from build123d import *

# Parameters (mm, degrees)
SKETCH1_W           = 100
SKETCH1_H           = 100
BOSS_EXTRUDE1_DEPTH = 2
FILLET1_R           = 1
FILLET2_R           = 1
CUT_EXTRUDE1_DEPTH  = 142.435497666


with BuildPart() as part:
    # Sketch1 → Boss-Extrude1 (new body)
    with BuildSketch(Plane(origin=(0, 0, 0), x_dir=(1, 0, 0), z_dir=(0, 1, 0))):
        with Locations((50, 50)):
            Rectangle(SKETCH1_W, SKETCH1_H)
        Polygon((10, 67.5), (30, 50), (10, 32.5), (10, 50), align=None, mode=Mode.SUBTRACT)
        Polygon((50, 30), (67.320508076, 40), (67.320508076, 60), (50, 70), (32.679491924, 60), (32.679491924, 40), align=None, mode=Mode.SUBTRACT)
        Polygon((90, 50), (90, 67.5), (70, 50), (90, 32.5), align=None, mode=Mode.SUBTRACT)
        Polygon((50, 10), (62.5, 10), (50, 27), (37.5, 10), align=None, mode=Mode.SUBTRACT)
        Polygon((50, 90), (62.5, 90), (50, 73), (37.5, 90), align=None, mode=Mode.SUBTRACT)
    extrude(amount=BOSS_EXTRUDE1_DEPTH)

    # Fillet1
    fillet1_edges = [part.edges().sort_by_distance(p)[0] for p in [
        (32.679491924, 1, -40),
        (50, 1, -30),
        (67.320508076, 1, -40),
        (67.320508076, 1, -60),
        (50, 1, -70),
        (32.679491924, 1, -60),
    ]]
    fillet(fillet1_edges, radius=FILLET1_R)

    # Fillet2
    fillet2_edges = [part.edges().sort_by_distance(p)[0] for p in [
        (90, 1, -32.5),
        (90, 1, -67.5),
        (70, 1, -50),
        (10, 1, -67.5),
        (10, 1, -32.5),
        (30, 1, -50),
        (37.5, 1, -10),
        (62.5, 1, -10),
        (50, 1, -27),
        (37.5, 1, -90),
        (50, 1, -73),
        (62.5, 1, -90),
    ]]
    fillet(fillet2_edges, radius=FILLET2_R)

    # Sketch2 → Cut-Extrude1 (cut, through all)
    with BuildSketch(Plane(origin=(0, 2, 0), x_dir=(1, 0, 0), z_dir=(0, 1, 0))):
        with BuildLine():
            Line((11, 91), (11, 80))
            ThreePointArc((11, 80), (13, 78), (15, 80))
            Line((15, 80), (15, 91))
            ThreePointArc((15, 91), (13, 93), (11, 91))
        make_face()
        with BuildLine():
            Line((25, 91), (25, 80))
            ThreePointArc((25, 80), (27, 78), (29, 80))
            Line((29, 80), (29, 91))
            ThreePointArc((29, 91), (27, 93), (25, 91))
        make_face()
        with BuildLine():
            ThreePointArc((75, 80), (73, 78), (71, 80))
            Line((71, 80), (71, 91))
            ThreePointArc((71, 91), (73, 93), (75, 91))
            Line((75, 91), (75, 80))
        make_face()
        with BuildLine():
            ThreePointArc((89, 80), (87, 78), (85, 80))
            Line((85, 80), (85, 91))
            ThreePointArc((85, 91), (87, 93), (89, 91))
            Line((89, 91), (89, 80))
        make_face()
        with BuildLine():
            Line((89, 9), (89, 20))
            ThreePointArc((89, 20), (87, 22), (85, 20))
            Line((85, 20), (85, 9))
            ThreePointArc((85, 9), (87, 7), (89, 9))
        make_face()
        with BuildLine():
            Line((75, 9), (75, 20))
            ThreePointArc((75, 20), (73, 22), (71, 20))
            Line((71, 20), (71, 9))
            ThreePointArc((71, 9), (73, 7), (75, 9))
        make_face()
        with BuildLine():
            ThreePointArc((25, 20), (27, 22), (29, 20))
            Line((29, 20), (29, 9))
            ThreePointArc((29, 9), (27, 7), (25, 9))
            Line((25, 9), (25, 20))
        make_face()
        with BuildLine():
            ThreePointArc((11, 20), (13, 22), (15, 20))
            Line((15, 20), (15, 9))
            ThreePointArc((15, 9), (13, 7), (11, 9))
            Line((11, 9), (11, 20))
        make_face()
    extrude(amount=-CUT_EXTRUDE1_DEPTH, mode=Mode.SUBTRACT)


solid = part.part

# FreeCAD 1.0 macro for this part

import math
import FreeCAD as App
import Part
import Sketcher

V = App.Vector
Q = App.Units.Quantity


def edges_at(feature, points):
    """Names of the edges that pass closest to the given points."""
    edges = feature.Shape.Edges
    near = lambda p: min(range(len(edges)), key=lambda i: edges[i].distToShape(Part.Vertex(*p))[0])
    return sorted({f"Edge{near(p) + 1}" for p in points})


def add_polygon(sketch, points):
    """Adds a closed chain of lines whose ends are joined by coincident constraints."""
    first, n = sketch.GeometryCount, len(points)
    for a, b in zip(points, points[1:] + points[:1]):
        sketch.addGeometry(Part.LineSegment(App.Vector(*a, 0), App.Vector(*b, 0)), False)
    for i in range(n):
        sketch.addConstraint(Sketcher.Constraint("Coincident", first + i, 2, first + (i + 1) % n, 1))

doc = App.newDocument("Part")
body = doc.addObject("PartDesign::Body", "Body")

# Sketch on XZ plane
sketch1 = body.newObject("Sketcher::SketchObject", "Sketch")
sketch1.AttachmentSupport = (doc.getObject("XZ_Plane"), [""])
sketch1.MapMode = "FlatFace"
add_polygon(sketch1, [(0, -100), (0, 0), (100, 0), (100, -100)])  # lines 0-3
add_polygon(sketch1, [(62.5, -10), (37.5, -10), (50, -27)])  # lines 4-6
add_polygon(sketch1, [(10, -32.5), (10, -67.5), (30, -50)])  # lines 7-9
add_polygon(sketch1, [(67.320508, -40), (50, -30), (32.679492, -40), (32.679492, -60), (50, -70), (67.320508, -60)])  # lines 10-15
add_polygon(sketch1, [(90, -67.5), (90, -32.5), (70, -50)])  # lines 16-18
add_polygon(sketch1, [(37.5, -90), (62.5, -90), (50, -73)])  # lines 19-21
sketch1.addConstraint([
    Sketcher.Constraint("Vertical", 0),
    Sketcher.Constraint("Horizontal", 1),
    Sketcher.Constraint("Vertical", 2),
    Sketcher.Constraint("Horizontal", 3),
    Sketcher.Constraint("Horizontal", 4),
    Sketcher.Constraint("Vertical", 7),
    Sketcher.Constraint("Vertical", 12),
    Sketcher.Constraint("Vertical", 15),
    Sketcher.Constraint("Vertical", 16),
    Sketcher.Constraint("Horizontal", 19),
    Sketcher.Constraint("Coincident", 0, 2, -1, 1),
    Sketcher.Constraint("Parallel", 10, 13),
    Sketcher.Constraint("Parallel", 11, 14),
    Sketcher.Constraint("Parallel", 8, 17),
    Sketcher.Constraint("Parallel", 9, 18),
    Sketcher.Constraint("Parallel", 5, 20),
    Sketcher.Constraint("Parallel", 6, 21),
    Sketcher.Constraint("Horizontal", 12, 2, 14, 2),
    Sketcher.Constraint("Horizontal", 11, 2, 15, 2),
    Sketcher.Constraint("Horizontal", 9, 2, 16, 2),
    Sketcher.Constraint("Horizontal", 8, 2, 17, 2),
    Sketcher.Constraint("Horizontal", 7, 2, 18, 2),
    Sketcher.Constraint("Vertical", 5, 2, 10, 2),
    Sketcher.Constraint("Vertical", 10, 2, 13, 2),
    Sketcher.Constraint("Vertical", 6, 2, 19, 2),
    Sketcher.Constraint("Vertical", 13, 2, 20, 2),
    Sketcher.Constraint("Vertical", 4, 2, 21, 2),
    Sketcher.Constraint("Equal", 3, 0),
    Sketcher.Constraint("DistanceX", 1, 1, 1, 2, 100.0),
    Sketcher.Constraint("DistanceX", 4, 2, 4, 1, 25.0),
    Sketcher.Constraint("DistanceY", 7, 2, 7, 1, 35.0),
    Sketcher.Constraint("DistanceY", 12, 2, 12, 1, 20.0),
    Sketcher.Constraint("Angle", 10, Q("150 deg")),
    Sketcher.Constraint("Distance", 10, 20.0),
    Sketcher.Constraint("DistanceY", 4, 2, -1, 1, 10.0),
    Sketcher.Constraint("DistanceX", -1, 1, 5, 2, 50.0),
    Sketcher.Constraint("DistanceY", 5, 2, -1, 1, 27.0),
    Sketcher.Constraint("DistanceX", -1, 1, 7, 2, 10.0),
    Sketcher.Constraint("DistanceX", -1, 1, 8, 2, 30.0),
    Sketcher.Constraint("DistanceY", 8, 2, -1, 1, 50.0),
    Sketcher.Constraint("DistanceY", 10, 2, -1, 1, 30.0),
    Sketcher.Constraint("DistanceX", -1, 1, 16, 2, 90.0),
    Sketcher.Constraint("DistanceY", 19, 2, -1, 1, 90.0),
])
pad1 = body.newObject("PartDesign::Pad", "Pad")
pad1.Profile = sketch1
pad1.Length = 2
pad1.Reversed = True
doc.recompute()

fillet = body.newObject("PartDesign::Fillet", "Fillet")
fillet.Base = (pad1, edges_at(pad1, [
    (32.679, 1, -40),
    (50, 1, -30),
    (67.321, 1, -40),
    (67.321, 1, -60),
    (50, 1, -70),
    (32.679, 1, -60),
]))
fillet.Radius = 1
doc.recompute()

fillet2 = body.newObject("PartDesign::Fillet", "Fillet001")
fillet2.Base = (fillet, edges_at(fillet, [
    (90, 1, -32.5),
    (90, 1, -67.5),
    (70, 1, -50),
    (10, 1, -67.5),
    (10, 1, -32.5),
    (30, 1, -50),
    (37.5, 1, -10),
    (62.5, 1, -10),
    (50, 1, -27),
    (37.5, 1, -90),
    (50, 1, -73),
    (62.5, 1, -90),
]))
fillet2.Radius = 1

# Sketch on XZ plane
sketch2 = body.newObject("Sketcher::SketchObject", "Sketch001")
sketch2.AttachmentSupport = (doc.getObject("XZ_Plane"), [""])
sketch2.MapMode = "FlatFace"
sketch2.AttachmentOffset = App.Placement(V(0, 0, -2), App.Rotation())
sketch2.addGeometry([
    Part.LineSegment(V(11, -91, 0), V(11, -80, 0)),  # 0
    Part.ArcOfCircle(Part.Circle(V(13, -80, 0), V(0, 0, 1), 2), math.radians(0), math.radians(180)),  # 1
    Part.LineSegment(V(15, -80, 0), V(15, -91, 0)),  # 2
    Part.ArcOfCircle(Part.Circle(V(13, -91, 0), V(0, 0, 1), 2), math.radians(180), math.radians(360)),  # 3
    Part.LineSegment(V(25, -91, 0), V(25, -80, 0)),  # 4
    Part.ArcOfCircle(Part.Circle(V(27, -80, 0), V(0, 0, 1), 2), math.radians(0), math.radians(180)),  # 5
    Part.LineSegment(V(29, -80, 0), V(29, -91, 0)),  # 6
    Part.ArcOfCircle(Part.Circle(V(27, -91, 0), V(0, 0, 1), 2), math.radians(180), math.radians(360)),  # 7
    Part.ArcOfCircle(Part.Circle(V(73, -80, 0), V(0, 0, 1), 2), math.radians(0), math.radians(180)),  # 8
    Part.LineSegment(V(75, -80, 0), V(75, -91, 0)),  # 9
    Part.ArcOfCircle(Part.Circle(V(73, -91, 0), V(0, 0, 1), 2), math.radians(180), math.radians(360)),  # 10
    Part.LineSegment(V(71, -91, 0), V(71, -80, 0)),  # 11
    Part.ArcOfCircle(Part.Circle(V(87, -80, 0), V(0, 0, 1), 2), math.radians(0), math.radians(180)),  # 12
    Part.LineSegment(V(89, -80, 0), V(89, -91, 0)),  # 13
    Part.ArcOfCircle(Part.Circle(V(87, -91, 0), V(0, 0, 1), 2), math.radians(180), math.radians(360)),  # 14
    Part.LineSegment(V(85, -91, 0), V(85, -80, 0)),  # 15
    Part.LineSegment(V(89, -9, 0), V(89, -20, 0)),  # 16
    Part.ArcOfCircle(Part.Circle(V(87, -20, 0), V(0, 0, 1), 2), math.radians(180), math.radians(360)),  # 17
    Part.LineSegment(V(85, -20, 0), V(85, -9, 0)),  # 18
    Part.ArcOfCircle(Part.Circle(V(87, -9, 0), V(0, 0, 1), 2), math.radians(0), math.radians(180)),  # 19
    Part.LineSegment(V(75, -9, 0), V(75, -20, 0)),  # 20
    Part.ArcOfCircle(Part.Circle(V(73, -20, 0), V(0, 0, 1), 2), math.radians(180), math.radians(360)),  # 21
    Part.LineSegment(V(71, -20, 0), V(71, -9, 0)),  # 22
    Part.ArcOfCircle(Part.Circle(V(73, -9, 0), V(0, 0, 1), 2), math.radians(0), math.radians(180)),  # 23
    Part.ArcOfCircle(Part.Circle(V(27, -20, 0), V(0, 0, 1), 2), math.radians(180), math.radians(360)),  # 24
    Part.LineSegment(V(25, -20, 0), V(25, -9, 0)),  # 25
    Part.ArcOfCircle(Part.Circle(V(27, -9, 0), V(0, 0, 1), 2), math.radians(0), math.radians(180)),  # 26
    Part.LineSegment(V(29, -9, 0), V(29, -20, 0)),  # 27
    Part.ArcOfCircle(Part.Circle(V(13, -20, 0), V(0, 0, 1), 2), math.radians(180), math.radians(360)),  # 28
    Part.LineSegment(V(11, -20, 0), V(11, -9, 0)),  # 29
    Part.ArcOfCircle(Part.Circle(V(13, -9, 0), V(0, 0, 1), 2), math.radians(0), math.radians(180)),  # 30
    Part.LineSegment(V(15, -9, 0), V(15, -20, 0)),  # 31
], False)
sketch2.addConstraint([
    Sketcher.Constraint("Tangent", 0, 2, 1, 2),
    Sketcher.Constraint("Tangent", 1, 1, 2, 1),
    Sketcher.Constraint("Tangent", 2, 2, 3, 2),
    Sketcher.Constraint("Tangent", 3, 1, 0, 1),
    Sketcher.Constraint("Tangent", 4, 2, 5, 2),
    Sketcher.Constraint("Tangent", 5, 1, 6, 1),
    Sketcher.Constraint("Tangent", 6, 2, 7, 2),
    Sketcher.Constraint("Tangent", 7, 1, 4, 1),
    Sketcher.Constraint("Tangent", 8, 1, 9, 1),
    Sketcher.Constraint("Tangent", 9, 2, 10, 2),
    Sketcher.Constraint("Tangent", 10, 1, 11, 1),
    Sketcher.Constraint("Tangent", 11, 2, 8, 2),
    Sketcher.Constraint("Tangent", 12, 1, 13, 1),
    Sketcher.Constraint("Tangent", 13, 2, 14, 2),
    Sketcher.Constraint("Tangent", 14, 1, 15, 1),
    Sketcher.Constraint("Tangent", 15, 2, 12, 2),
    Sketcher.Constraint("Tangent", 16, 2, 17, 2),
    Sketcher.Constraint("Tangent", 17, 1, 18, 1),
    Sketcher.Constraint("Tangent", 18, 2, 19, 2),
    Sketcher.Constraint("Tangent", 19, 1, 16, 1),
    Sketcher.Constraint("Tangent", 20, 2, 21, 2),
    Sketcher.Constraint("Tangent", 21, 1, 22, 1),
    Sketcher.Constraint("Tangent", 22, 2, 23, 2),
    Sketcher.Constraint("Tangent", 23, 1, 20, 1),
    Sketcher.Constraint("Tangent", 24, 1, 25, 1),
    Sketcher.Constraint("Tangent", 25, 2, 26, 2),
    Sketcher.Constraint("Tangent", 26, 1, 27, 1),
    Sketcher.Constraint("Tangent", 27, 2, 24, 2),
    Sketcher.Constraint("Tangent", 28, 1, 29, 1),
    Sketcher.Constraint("Tangent", 29, 2, 30, 2),
    Sketcher.Constraint("Tangent", 30, 1, 31, 1),
    Sketcher.Constraint("Tangent", 31, 2, 28, 2),
    Sketcher.Constraint("Vertical", 0),
    Sketcher.Constraint("Vertical", 2),
    Sketcher.Constraint("Vertical", 4),
    Sketcher.Constraint("Vertical", 6),
    Sketcher.Constraint("Vertical", 9),
    Sketcher.Constraint("Vertical", 11),
    Sketcher.Constraint("Vertical", 13),
    Sketcher.Constraint("Vertical", 15),
    Sketcher.Constraint("Vertical", 16),
    Sketcher.Constraint("Vertical", 18),
    Sketcher.Constraint("Vertical", 20),
    Sketcher.Constraint("Vertical", 22),
    Sketcher.Constraint("Vertical", 25),
    Sketcher.Constraint("Vertical", 27),
    Sketcher.Constraint("Vertical", 29),
    Sketcher.Constraint("Vertical", 31),
    Sketcher.Constraint("Equal", 3, 5),
    Sketcher.Constraint("Equal", 7, 8),
    Sketcher.Constraint("Equal", 10, 12),
    Sketcher.Constraint("Equal", 14, 17),
    Sketcher.Constraint("Equal", 19, 21),
    Sketcher.Constraint("Equal", 23, 24),
    Sketcher.Constraint("Equal", 26, 28),
    Sketcher.Constraint("Horizontal", 1, 3, 5, 3),
    Sketcher.Constraint("Horizontal", 3, 3, 7, 3),
    Sketcher.Constraint("Horizontal", 5, 3, 8, 3),
    Sketcher.Constraint("Horizontal", 7, 3, 10, 3),
    Sketcher.Constraint("Horizontal", 8, 3, 12, 3),
    Sketcher.Constraint("Horizontal", 10, 3, 14, 3),
    Sketcher.Constraint("Horizontal", 17, 3, 21, 3),
    Sketcher.Constraint("Horizontal", 19, 3, 23, 3),
    Sketcher.Constraint("Horizontal", 21, 3, 24, 3),
    Sketcher.Constraint("Horizontal", 23, 3, 26, 3),
    Sketcher.Constraint("Horizontal", 24, 3, 28, 3),
    Sketcher.Constraint("Horizontal", 26, 3, 30, 3),
    Sketcher.Constraint("Vertical", 14, 3, 17, 3),
    Sketcher.Constraint("Vertical", 10, 3, 21, 3),
    Sketcher.Constraint("Vertical", 7, 3, 24, 3),
    Sketcher.Constraint("Vertical", 3, 3, 28, 3),
    Sketcher.Constraint("Equal", 15, 16),
    Sketcher.Constraint("Radius", 1, 2.0),
    Sketcher.Constraint("DistanceY", 0, 1, 0, 2, 11.0),
    Sketcher.Constraint("DistanceX", -1, 1, 1, 3, 13.0),
    Sketcher.Constraint("DistanceY", 1, 3, -1, 1, 80.0),
    Sketcher.Constraint("DistanceX", -1, 1, 5, 3, 27.0),
    Sketcher.Constraint("DistanceX", -1, 1, 8, 3, 73.0),
    Sketcher.Constraint("DistanceX", -1, 1, 12, 3, 87.0),
    Sketcher.Constraint("DistanceY", 17, 3, -1, 1, 20.0),
])
pocket1 = body.newObject("PartDesign::Pocket", "Pocket")
pocket1.Profile = sketch2
pocket1.Type = "ThroughAll"
pocket1.Reversed = True

doc.recompute()
